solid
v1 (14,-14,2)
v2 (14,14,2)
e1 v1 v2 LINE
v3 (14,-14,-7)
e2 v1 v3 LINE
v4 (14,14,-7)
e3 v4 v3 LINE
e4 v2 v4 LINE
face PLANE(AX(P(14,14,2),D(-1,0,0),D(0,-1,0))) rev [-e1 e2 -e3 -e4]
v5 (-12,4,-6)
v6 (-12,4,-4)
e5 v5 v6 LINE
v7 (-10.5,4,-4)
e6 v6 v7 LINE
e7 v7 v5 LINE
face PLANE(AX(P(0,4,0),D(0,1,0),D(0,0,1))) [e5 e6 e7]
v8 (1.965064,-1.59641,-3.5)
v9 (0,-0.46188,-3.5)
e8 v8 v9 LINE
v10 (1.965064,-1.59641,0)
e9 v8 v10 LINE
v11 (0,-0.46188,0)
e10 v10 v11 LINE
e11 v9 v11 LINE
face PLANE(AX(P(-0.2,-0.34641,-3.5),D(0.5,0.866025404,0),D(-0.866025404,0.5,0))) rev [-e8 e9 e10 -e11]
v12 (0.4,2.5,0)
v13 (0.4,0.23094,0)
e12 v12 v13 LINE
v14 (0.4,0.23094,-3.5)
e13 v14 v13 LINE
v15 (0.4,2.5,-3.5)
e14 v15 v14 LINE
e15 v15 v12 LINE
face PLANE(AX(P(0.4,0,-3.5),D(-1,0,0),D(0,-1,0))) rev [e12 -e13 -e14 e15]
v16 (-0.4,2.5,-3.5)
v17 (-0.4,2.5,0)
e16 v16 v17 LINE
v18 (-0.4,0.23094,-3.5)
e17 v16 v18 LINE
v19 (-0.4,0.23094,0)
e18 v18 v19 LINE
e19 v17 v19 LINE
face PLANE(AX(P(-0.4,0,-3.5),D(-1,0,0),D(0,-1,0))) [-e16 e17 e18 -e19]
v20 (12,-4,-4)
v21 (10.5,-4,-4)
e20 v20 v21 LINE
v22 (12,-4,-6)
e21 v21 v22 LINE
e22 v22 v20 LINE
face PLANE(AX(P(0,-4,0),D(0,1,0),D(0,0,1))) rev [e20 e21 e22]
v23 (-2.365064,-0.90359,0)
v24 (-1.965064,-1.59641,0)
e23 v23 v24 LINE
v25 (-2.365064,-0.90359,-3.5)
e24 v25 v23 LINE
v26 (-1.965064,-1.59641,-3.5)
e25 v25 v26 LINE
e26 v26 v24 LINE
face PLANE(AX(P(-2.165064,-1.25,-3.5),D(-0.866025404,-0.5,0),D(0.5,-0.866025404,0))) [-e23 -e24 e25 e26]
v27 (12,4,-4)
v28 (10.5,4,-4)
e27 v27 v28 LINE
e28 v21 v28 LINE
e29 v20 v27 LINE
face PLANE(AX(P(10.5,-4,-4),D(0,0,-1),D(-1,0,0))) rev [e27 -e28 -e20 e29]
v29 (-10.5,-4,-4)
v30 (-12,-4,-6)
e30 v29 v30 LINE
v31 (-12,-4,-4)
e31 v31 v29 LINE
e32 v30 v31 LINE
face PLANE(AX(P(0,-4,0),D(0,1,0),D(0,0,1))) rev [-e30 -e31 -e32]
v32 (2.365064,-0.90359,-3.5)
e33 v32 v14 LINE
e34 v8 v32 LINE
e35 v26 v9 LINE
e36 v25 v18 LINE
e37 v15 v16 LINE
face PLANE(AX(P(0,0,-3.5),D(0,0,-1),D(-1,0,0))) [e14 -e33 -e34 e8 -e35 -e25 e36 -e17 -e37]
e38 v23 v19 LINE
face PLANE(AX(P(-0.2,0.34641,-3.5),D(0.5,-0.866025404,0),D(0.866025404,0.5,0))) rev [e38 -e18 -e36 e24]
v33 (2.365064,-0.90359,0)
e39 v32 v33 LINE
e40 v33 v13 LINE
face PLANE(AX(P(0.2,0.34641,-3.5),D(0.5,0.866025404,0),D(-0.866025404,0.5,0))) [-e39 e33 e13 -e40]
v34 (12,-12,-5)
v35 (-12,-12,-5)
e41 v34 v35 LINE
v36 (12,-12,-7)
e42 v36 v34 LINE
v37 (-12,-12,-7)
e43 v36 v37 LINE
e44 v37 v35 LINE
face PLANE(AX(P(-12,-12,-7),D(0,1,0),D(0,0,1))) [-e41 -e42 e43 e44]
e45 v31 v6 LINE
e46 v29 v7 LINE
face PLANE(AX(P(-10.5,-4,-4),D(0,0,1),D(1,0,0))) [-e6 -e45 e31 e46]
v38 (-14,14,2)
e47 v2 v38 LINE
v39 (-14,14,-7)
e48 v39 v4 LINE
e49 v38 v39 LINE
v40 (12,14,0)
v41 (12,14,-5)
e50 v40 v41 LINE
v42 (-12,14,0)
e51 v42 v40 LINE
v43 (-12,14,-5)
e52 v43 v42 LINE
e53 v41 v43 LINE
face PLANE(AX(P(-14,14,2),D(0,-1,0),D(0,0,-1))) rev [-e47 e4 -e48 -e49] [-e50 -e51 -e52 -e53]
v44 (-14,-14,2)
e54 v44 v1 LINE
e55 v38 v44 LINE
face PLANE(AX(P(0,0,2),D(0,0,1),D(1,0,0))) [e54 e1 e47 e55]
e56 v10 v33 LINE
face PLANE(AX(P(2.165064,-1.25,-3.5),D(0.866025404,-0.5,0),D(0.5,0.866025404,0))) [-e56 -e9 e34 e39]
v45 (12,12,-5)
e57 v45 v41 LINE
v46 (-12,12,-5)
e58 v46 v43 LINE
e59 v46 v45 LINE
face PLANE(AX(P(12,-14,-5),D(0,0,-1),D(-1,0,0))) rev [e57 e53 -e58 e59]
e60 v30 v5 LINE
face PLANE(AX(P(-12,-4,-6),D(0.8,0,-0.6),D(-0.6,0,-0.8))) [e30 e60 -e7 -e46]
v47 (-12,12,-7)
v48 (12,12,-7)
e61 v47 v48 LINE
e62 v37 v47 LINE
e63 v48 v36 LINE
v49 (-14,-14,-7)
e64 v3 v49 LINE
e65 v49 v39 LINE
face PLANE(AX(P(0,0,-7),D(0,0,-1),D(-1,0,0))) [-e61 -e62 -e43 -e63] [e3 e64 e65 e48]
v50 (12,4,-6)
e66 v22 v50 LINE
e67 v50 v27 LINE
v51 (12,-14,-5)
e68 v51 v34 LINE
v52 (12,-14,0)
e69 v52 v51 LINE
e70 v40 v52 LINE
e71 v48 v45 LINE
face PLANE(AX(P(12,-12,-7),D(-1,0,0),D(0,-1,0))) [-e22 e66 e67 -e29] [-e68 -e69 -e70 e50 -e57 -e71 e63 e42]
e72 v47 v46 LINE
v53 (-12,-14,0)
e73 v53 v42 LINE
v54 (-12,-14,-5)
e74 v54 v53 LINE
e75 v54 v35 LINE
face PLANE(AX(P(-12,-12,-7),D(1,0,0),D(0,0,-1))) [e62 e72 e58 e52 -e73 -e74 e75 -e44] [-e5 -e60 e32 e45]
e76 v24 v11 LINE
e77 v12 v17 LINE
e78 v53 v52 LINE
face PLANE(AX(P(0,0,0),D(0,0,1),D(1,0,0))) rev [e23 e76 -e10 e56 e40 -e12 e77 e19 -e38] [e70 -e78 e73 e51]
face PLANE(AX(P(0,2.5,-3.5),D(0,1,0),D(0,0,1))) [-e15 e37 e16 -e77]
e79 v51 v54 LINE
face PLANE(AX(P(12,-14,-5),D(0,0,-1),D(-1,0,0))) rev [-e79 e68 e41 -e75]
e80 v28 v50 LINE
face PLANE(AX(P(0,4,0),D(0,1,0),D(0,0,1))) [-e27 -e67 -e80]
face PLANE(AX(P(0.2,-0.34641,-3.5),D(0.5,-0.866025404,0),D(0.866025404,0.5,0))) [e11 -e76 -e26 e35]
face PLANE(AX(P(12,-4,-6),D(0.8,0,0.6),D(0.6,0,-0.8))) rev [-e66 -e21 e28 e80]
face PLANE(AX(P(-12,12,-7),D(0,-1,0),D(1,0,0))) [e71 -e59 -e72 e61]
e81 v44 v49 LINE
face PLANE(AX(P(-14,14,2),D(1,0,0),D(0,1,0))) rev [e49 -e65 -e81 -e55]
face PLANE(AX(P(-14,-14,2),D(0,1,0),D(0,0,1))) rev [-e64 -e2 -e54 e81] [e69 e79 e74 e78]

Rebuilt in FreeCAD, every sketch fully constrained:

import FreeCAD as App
import Part
import Sketcher

V = App.Vector
Q = App.Units.Quantity

doc = App.newDocument("Part")
params = doc.addObject("Spreadsheet::Sheet", "Params")
for row, (alias, value) in enumerate([
    ("sketch1_width", "28 mm"),
    ("pad1_length", "2 mm"),
    ("sketch2_width", "28 mm"),
    ("sketch2_width2", "24 mm"),
    ("pad2_length", "7 mm"),
    ("sketch3_width", "24 mm"),
    ("sketch3_height", "5 mm"),
    ("sketch4_width", "0.8 mm"),
    ("pad3_length", "3.5 mm"),
    ("sketch5_height", "2 mm"),
    ("sketch5_width", "1.5 mm"),
    ("pad4_length", "8 mm"),
], start=1):
    params.set(f"A{row}", alias)
    params.set(f"B{row}", "=" + value)
    params.setAlias(f"B{row}", alias)

body = doc.addObject("PartDesign::Body", "Body")

# Sketch on XY plane
sketch1 = body.newObject("Sketcher::SketchObject", "Sketch")
sketch1.AttachmentSupport = (doc.getObject("XY_Plane"), [""])
sketch1.MapMode = "FlatFace"
sketch1.addGeometry([
    Part.LineSegment(V(-14, 14, 0), V(-14, -14, 0)),
    Part.LineSegment(V(-14, -14, 0), V(14, -14, 0)),
    Part.LineSegment(V(14, -14, 0), V(14, 14, 0)),
    Part.LineSegment(V(14, 14, 0), V(-14, 14, 0)),
], False)
sketch1.addConstraint([
    Sketcher.Constraint("Coincident", 0, 2, 1, 1),
    Sketcher.Constraint("Coincident", 1, 2, 2, 1),
    Sketcher.Constraint("Coincident", 2, 2, 3, 1),
    Sketcher.Constraint("Coincident", 3, 2, 0, 1),
    Sketcher.Constraint("Vertical", 0),
    Sketcher.Constraint("Horizontal", 1),
    Sketcher.Constraint("Vertical", 2),
    Sketcher.Constraint("Horizontal", 3),
    Sketcher.Constraint("Symmetric", 0, 2, 2, 2, -1, 1),
    Sketcher.Constraint("Equal", 3, 0),
    Sketcher.Constraint("DistanceX", 1, 1, 1, 2, Q("28 mm")),
])
sketch1.setExpression("Constraints[10]", "Params.sketch1_width")
pad1 = body.newObject("PartDesign::Pad", "Pad")
pad1.Profile = sketch1
pad1.setExpression("Length", "Params.pad1_length")

# Sketch on XY plane
sketch2 = body.newObject("Sketcher::SketchObject", "Sketch001")
sketch2.AttachmentSupport = (doc.getObject("XY_Plane"), [""])
sketch2.MapMode = "FlatFace"
sketch2.addGeometry([
    Part.LineSegment(V(14, 14, 0), V(14, -14, 0)),  # 0
    Part.LineSegment(V(14, -14, 0), V(-14, -14, 0)),  # 1
    Part.LineSegment(V(-14, -14, 0), V(-14, 14, 0)),  # 2
    Part.LineSegment(V(-14, 14, 0), V(14, 14, 0)),  # 3
    Part.LineSegment(V(-12, -12, 0), V(12, -12, 0)),  # 4
    Part.LineSegment(V(12, -12, 0), V(12, 12, 0)),  # 5
    Part.LineSegment(V(12, 12, 0), V(-12, 12, 0)),  # 6
    Part.LineSegment(V(-12, 12, 0), V(-12, -12, 0)),  # 7
], False)
sketch2.addConstraint([
    Sketcher.Constraint("Coincident", 0, 2, 1, 1),
    Sketcher.Constraint("Coincident", 1, 2, 2, 1),
    Sketcher.Constraint("Coincident", 2, 2, 3, 1),
    Sketcher.Constraint("Coincident", 3, 2, 0, 1),
    Sketcher.Constraint("Coincident", 4, 2, 5, 1),
    Sketcher.Constraint("Coincident", 5, 2, 6, 1),
    Sketcher.Constraint("Coincident", 6, 2, 7, 1),
    Sketcher.Constraint("Coincident", 7, 2, 4, 1),
    Sketcher.Constraint("Vertical", 0),
    Sketcher.Constraint("Horizontal", 1),
    Sketcher.Constraint("Vertical", 2),
    Sketcher.Constraint("Horizontal", 3),
    Sketcher.Constraint("Horizontal", 4),
    Sketcher.Constraint("Vertical", 5),
    Sketcher.Constraint("Horizontal", 6),
    Sketcher.Constraint("Vertical", 7),
    Sketcher.Constraint("Symmetric", 0, 2, 2, 2, -1, 1),
    Sketcher.Constraint("Symmetric", 4, 2, 6, 2, -1, 1),
    Sketcher.Constraint("Equal", 3, 0),
    Sketcher.Constraint("Equal", 6, 5),
    Sketcher.Constraint("DistanceX", 1, 2, 1, 1, Q("28 mm")),
    Sketcher.Constraint("DistanceX", 4, 1, 4, 2, Q("24 mm")),
])
sketch2.setExpression("Constraints[20]", "Params.sketch2_width")
sketch2.setExpression("Constraints[21]", "Params.sketch2_width2")
pad2 = body.newObject("PartDesign::Pad", "Pad001")
pad2.Profile = sketch2
pad2.setExpression("Length", "Params.pad2_length")
pad2.Reversed = True

# Sketch on XZ plane
sketch3 = body.newObject("Sketcher::SketchObject", "Sketch002")
sketch3.AttachmentSupport = (doc.getObject("XZ_Plane"), [""])
sketch3.MapMode = "FlatFace"
sketch3.AttachmentOffset = App.Placement(V(0, 0, -14), App.Rotation())
sketch3.addGeometry([
    Part.LineSegment(V(-12, -5, 0), V(-12, 0, 0)),
    Part.LineSegment(V(-12, 0, 0), V(12, 0, 0)),
    Part.LineSegment(V(12, 0, 0), V(12, -5, 0)),
    Part.LineSegment(V(12, -5, 0), V(-12, -5, 0)),
], False)
sketch3.addConstraint([
    Sketcher.Constraint("Coincident", 0, 2, 1, 1),
    Sketcher.Constraint("Coincident", 1, 2, 2, 1),
    Sketcher.Constraint("Coincident", 2, 2, 3, 1),
    Sketcher.Constraint("Coincident", 3, 2, 0, 1),
    Sketcher.Constraint("Vertical", 0),
    Sketcher.Constraint("Horizontal", 1),
    Sketcher.Constraint("Vertical", 2),
    Sketcher.Constraint("Horizontal", 3),
    Sketcher.Constraint("Symmetric", 0, 2, 1, 2, -1, 1),
    Sketcher.Constraint("DistanceX", 1, 1, 1, 2, Q("24 mm")),
    Sketcher.Constraint("DistanceY", 0, 1, 0, 2, Q("5 mm")),
])
sketch3.setExpression("Constraints[9]", "Params.sketch3_width")
sketch3.setExpression("Constraints[10]", "Params.sketch3_height")
pocket1 = body.newObject("PartDesign::Pocket", "Pocket")
pocket1.Profile = sketch3
pocket1.Type = "ThroughAll"
pocket1.Reversed = True

# Sketch on XY plane
sketch4 = body.newObject("Sketcher::SketchObject", "Sketch003")
sketch4.AttachmentSupport = (doc.getObject("XY_Plane"), [""])
sketch4.MapMode = "FlatFace"
sketch4.addGeometry([
    Part.LineSegment(V(0.4, 2.5, 0), V(0.4, 0.2, 0)),  # 0
    Part.LineSegment(V(0.4, 0.2, 0), V(2.4, -0.9, 0)),  # 1
    Part.LineSegment(V(2.4, -0.9, 0), V(2, -1.6, 0)),  # 2
    Part.LineSegment(V(2, -1.6, 0), V(0, -0.5, 0)),  # 3
    Part.LineSegment(V(0, -0.5, 0), V(-2, -1.6, 0)),  # 4
    Part.LineSegment(V(-2, -1.6, 0), V(-2.4, -0.9, 0)),  # 5
    Part.LineSegment(V(-2.4, -0.9, 0), V(-0.4, 0.2, 0)),  # 6
    Part.LineSegment(V(-0.4, 0.2, 0), V(-0.4, 2.5, 0)),  # 7
    Part.LineSegment(V(-0.4, 2.5, 0), V(0.4, 2.5, 0)),  # 8
], False)
sketch4.addConstraint([
    Sketcher.Constraint("Coincident", 0, 2, 1, 1),
    Sketcher.Constraint("Coincident", 1, 2, 2, 1),
    Sketcher.Constraint("Coincident", 2, 2, 3, 1),
    Sketcher.Constraint("Coincident", 3, 2, 4, 1),
    Sketcher.Constraint("Coincident", 4, 2, 5, 1),
    Sketcher.Constraint("Coincident", 5, 2, 6, 1),
    Sketcher.Constraint("Coincident", 6, 2, 7, 1),
    Sketcher.Constraint("Coincident", 7, 2, 8, 1),
    Sketcher.Constraint("Coincident", 8, 2, 0, 1),
    Sketcher.Constraint("Vertical", 0),
    Sketcher.Constraint("Vertical", 7),
    Sketcher.Constraint("Horizontal", 8),
    Sketcher.Constraint("Symmetric", 2, 2, 4, 2, -2),
    Sketcher.Constraint("Symmetric", 1, 2, 5, 2, -2),
    Sketcher.Constraint("Symmetric", 0, 2, 6, 2, -2),
    Sketcher.Constraint("PointOnObject", 3, 2, -2),
    Sketcher.Constraint("Perpendicular", 1, 2),
    Sketcher.Constraint("Perpendicular", 2, 3),
    Sketcher.Constraint("Equal", 1, 3),
    Sketcher.Constraint("Angle", 1, Q("-30 deg")),
    Sketcher.Constraint("DistanceX", 8, 1, 8, 2, Q("0.8 mm")),
    Sketcher.Constraint("DistanceY", -1, 1, 7, 2, Q("2.5 mm")),
    Sketcher.Constraint("DistanceY", 0, 2, 0, 1, Q("2.26906 mm")),
    Sketcher.Constraint("Distance", 1, Q("2.26906 mm")),
])
sketch4.setExpression("Constraints[20]", "Params.sketch4_width")
pad3 = body.newObject("PartDesign::Pad", "Pad002")
pad3.Profile = sketch4
pad3.setExpression("Length", "Params.pad3_length")
pad3.Reversed = True

# Sketch on XZ plane
sketch5 = body.newObject("Sketcher::SketchObject", "Sketch004")
sketch5.AttachmentSupport = (doc.getObject("XZ_Plane"), [""])
sketch5.MapMode = "FlatFace"
sketch5.addGeometry([
    Part.LineSegment(V(-10.5, -4, 0), V(-12, -6, 0)),
    Part.LineSegment(V(-12, -6, 0), V(-12, -4, 0)),
    Part.LineSegment(V(-12, -4, 0), V(-10.5, -4, 0)),
], False)
sketch5.addConstraint([
    Sketcher.Constraint("Coincident", 0, 2, 1, 1),
    Sketcher.Constraint("Coincident", 1, 2, 2, 1),
    Sketcher.Constraint("Coincident", 2, 2, 0, 1),
    Sketcher.Constraint("Vertical", 1),
    Sketcher.Constraint("Horizontal", 2),
    Sketcher.Constraint("DistanceY", 1, 1, 1, 2, Q("2 mm")),
    Sketcher.Constraint("DistanceX", 2, 1, 2, 2, Q("1.5 mm")),
    Sketcher.Constraint("DistanceX", 0, 2, -1, 1, Q("12 mm")),
    Sketcher.Constraint("DistanceY", 0, 2, -1, 1, Q("6 mm")),
])
sketch5.setExpression("Constraints[5]", "Params.sketch5_height")
sketch5.setExpression("Constraints[6]", "Params.sketch5_width")
pad4 = body.newObject("PartDesign::Pad", "Pad003")
pad4.Profile = sketch5
pad4.setExpression("Length", "Params.pad4_length")
pad4.Midplane = True
doc.recompute()

mirrored = body.newObject("PartDesign::Mirrored", "Mirrored")
mirrored.Originals = [pad4]
mirrored.MirrorPlane = (doc.getObject("YZ_Plane"), [""])
body.Tip = mirrored

doc.recompute()
